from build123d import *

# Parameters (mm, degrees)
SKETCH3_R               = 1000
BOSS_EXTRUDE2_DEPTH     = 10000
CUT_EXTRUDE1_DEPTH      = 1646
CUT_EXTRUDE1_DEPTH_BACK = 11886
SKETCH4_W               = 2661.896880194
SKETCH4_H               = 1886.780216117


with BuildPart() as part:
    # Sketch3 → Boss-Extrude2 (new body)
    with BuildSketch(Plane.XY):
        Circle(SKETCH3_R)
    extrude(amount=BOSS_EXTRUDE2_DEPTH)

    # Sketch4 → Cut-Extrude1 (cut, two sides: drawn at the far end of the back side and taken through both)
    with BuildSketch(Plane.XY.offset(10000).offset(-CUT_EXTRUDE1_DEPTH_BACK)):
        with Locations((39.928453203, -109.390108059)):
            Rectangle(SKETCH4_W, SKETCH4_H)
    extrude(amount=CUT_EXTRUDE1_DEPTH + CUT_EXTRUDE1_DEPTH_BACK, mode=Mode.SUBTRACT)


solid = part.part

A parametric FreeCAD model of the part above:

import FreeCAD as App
import Part
import Sketcher

V = App.Vector
Q = App.Units.Quantity

doc = App.newDocument("Part")
body = doc.addObject("PartDesign::Body", "Body")

# Sketch on XY plane
sketch1 = doc.addObject("Sketcher::SketchObject", "Sketch")
body.addObject(sketch1)
sketch1.AttachmentSupport = (doc.XY_Plane, [""])
sketch1.MapMode = "FlatFace"
sketch1.addGeometry(Part.Circle(V(0, 0, 0), V(0, 0, 1), 1000), False)
sketch1.addConstraint([
    Sketcher.Constraint("Coincident", 0, 3, -1, 1),
    Sketcher.Constraint("Diameter", 0, Q("2000 mm")),
])
pad1 = doc.addObject("PartDesign::Pad", "Pad")
body.addObject(pad1)
pad1.Profile = sketch1
pad1.Length = 10000

# Sketch on XY plane
sketch2 = doc.addObject("Sketcher::SketchObject", "Sketch001")
body.addObject(sketch2)
sketch2.AttachmentSupport = (doc.XY_Plane, [""])
sketch2.MapMode = "FlatFace"
sketch2.AttachmentOffset = App.Placement(V(0, 0, 10000), App.Rotation())
sketch2.addGeometry([
    Part.LineSegment(V(-1291, 834, 0), V(-1291, -1053, 0)),
    Part.LineSegment(V(-1291, -1053, 0), V(1371, -1053, 0)),
    Part.LineSegment(V(1371, -1053, 0), V(1371, 834, 0)),
    Part.LineSegment(V(1371, 834, 0), V(-1291, 834, 0)),
], False)
sketch2.addConstraint([
    Sketcher.Constraint("Coincident", 0, 2, 1, 1),
    Sketcher.Constraint("Coincident", 1, 2, 2, 1),
    Sketcher.Constraint("Coincident", 2, 2, 3, 1),
    Sketcher.Constraint("Coincident", 3, 2, 0, 1),
    Sketcher.Constraint("Vertical", 0),
    Sketcher.Constraint("Horizontal", 1),
    Sketcher.Constraint("Vertical", 2),
    Sketcher.Constraint("Horizontal", 3),
    Sketcher.Constraint("DistanceY", -1, 1, 2, 2, Q("834 mm")),
    Sketcher.Constraint("DistanceX", 1, 1, 1, 2, Q("2661.89688 mm")),
    Sketcher.Constraint("DistanceY", 0, 2, 0, 1, Q("1886.780216 mm")),
    Sketcher.Constraint("DistanceX", 0, 2, -1, 1, Q("1291.019987 mm")),
])
pocket1 = doc.addObject("PartDesign::Pocket", "Pocket")
body.addObject(pocket1)
pocket1.Profile = sketch2
pocket1.Type = "ThroughAll"
pocket1.Midplane = True

doc.recompute()
